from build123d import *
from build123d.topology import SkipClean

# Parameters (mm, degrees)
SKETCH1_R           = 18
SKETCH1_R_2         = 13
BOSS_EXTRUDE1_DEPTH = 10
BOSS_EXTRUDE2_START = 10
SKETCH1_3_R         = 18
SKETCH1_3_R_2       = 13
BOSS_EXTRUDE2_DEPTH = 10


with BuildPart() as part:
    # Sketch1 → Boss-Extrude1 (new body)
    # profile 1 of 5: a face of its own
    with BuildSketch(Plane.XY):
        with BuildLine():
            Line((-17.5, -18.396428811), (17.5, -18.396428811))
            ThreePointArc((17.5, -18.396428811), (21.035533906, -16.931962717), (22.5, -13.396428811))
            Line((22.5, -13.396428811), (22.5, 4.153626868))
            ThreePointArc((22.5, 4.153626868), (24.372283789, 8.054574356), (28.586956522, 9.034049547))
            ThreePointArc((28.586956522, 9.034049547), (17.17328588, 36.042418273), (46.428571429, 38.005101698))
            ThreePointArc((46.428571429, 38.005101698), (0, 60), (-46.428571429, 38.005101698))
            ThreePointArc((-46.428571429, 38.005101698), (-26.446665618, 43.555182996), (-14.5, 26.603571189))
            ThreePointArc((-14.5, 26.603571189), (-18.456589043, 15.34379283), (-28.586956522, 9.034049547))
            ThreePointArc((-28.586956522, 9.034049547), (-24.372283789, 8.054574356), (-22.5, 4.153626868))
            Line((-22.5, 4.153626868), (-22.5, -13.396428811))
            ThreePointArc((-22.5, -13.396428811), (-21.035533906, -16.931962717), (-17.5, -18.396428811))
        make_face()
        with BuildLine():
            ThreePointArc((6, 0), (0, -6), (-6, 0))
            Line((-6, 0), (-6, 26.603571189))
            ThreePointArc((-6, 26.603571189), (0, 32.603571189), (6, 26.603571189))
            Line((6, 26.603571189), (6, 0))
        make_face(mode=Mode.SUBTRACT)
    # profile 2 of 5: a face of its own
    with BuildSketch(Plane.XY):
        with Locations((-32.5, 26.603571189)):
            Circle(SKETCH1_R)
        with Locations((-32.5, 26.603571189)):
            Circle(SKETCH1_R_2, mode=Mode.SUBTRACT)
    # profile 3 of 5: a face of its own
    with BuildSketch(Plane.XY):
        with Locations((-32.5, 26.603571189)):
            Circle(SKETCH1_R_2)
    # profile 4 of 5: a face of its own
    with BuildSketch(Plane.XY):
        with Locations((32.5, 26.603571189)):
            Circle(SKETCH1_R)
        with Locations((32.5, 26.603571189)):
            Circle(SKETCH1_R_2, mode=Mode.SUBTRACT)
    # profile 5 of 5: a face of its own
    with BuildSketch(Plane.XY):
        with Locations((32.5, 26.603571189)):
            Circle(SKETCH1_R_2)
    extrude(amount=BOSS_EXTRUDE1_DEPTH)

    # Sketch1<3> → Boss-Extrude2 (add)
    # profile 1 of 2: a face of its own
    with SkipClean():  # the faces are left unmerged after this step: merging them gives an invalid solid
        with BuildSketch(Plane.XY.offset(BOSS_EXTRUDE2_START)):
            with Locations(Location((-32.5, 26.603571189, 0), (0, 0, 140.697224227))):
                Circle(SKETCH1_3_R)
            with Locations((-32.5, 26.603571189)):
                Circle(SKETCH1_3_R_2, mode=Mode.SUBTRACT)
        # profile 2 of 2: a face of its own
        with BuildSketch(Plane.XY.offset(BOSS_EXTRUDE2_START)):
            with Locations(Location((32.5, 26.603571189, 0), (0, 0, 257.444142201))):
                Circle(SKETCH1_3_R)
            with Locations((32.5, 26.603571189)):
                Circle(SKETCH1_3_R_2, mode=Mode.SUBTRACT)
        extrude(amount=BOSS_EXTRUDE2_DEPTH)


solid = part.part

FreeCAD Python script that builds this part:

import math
import FreeCAD as App
import Part
import Sketcher

V = App.Vector

doc = App.newDocument("Part")
body = doc.addObject("PartDesign::Body", "Body")

sketch1 = body.newObject("Sketcher::SketchObject", "Sketch")
sketch1.AttachmentSupport = (doc.getObject("XY_Plane"), [""])
sketch1.MapMode = "FlatFace"
sketch1.addGeometry([
    Part.LineSegment(V(-18, -18, 0), V(18, -18, 0)),
    Part.ArcOfCircle(Part.Circle(V(18, -13, 0), V(0, 0, 1), 5), math.radians(-90), math.radians(0)),
    Part.LineSegment(V(22, -13, 0), V(22, 4, 0)),
    Part.ArcOfCircle(Part.Circle(V(28, 4, 0), V(0, 0, 1), 5), math.radians(77), math.radians(180)),
    Part.ArcOfCircle(Part.Circle(V(32, 27, 0), V(0, 0, 1), 18), math.radians(-103), math.radians(39)),
    Part.ArcOfCircle(Part.Circle(V(0, 0, 0), V(0, 0, 1), 60), math.radians(39), math.radians(141)),
    Part.ArcOfCircle(Part.Circle(V(-32, 27, 0), V(0, 0, 1), 18), math.radians(141), math.radians(283)),
    Part.ArcOfCircle(Part.Circle(V(-28, 4, 0), V(0, 0, 1), 5), math.radians(0), math.radians(103)),
    Part.LineSegment(V(-22, 4, 0), V(-22, -13, 0)),
    Part.ArcOfCircle(Part.Circle(V(-18, -13, 0), V(0, 0, 1), 5), math.radians(180), math.radians(270)),
    Part.LineSegment(V(6, 27, 0), V(6, 0, 0)),
    Part.ArcOfCircle(Part.Circle(V(0, 0, 0), V(0, 0, 1), 6), math.radians(180), math.radians(360)),
    Part.LineSegment(V(-6, 0, 0), V(-6, 27, 0)),
    Part.ArcOfCircle(Part.Circle(V(0, 27, 0), V(0, 0, 1), 6), math.radians(0), math.radians(180)),
], False)
sketch1.addConstraint([
    Sketcher.Constraint("Tangent", 0, 2, 1, 1),
    Sketcher.Constraint("Tangent", 1, 2, 2, 1),
    Sketcher.Constraint("Tangent", 2, 2, 3, 2),
    Sketcher.Constraint("Tangent", 3, 1, 4, 1),
    Sketcher.Constraint("Tangent", 4, 2, 5, 1),
    Sketcher.Constraint("Tangent", 5, 2, 6, 1),
    Sketcher.Constraint("Tangent", 6, 2, 7, 2),
    Sketcher.Constraint("Tangent", 7, 1, 8, 1),
    Sketcher.Constraint("Tangent", 8, 2, 9, 1),
    Sketcher.Constraint("Tangent", 9, 2, 0, 1),
    Sketcher.Constraint("Tangent", 10, 2, 11, 2),
    Sketcher.Constraint("Tangent", 11, 1, 12, 1),
    Sketcher.Constraint("Tangent", 12, 2, 13, 2),
    Sketcher.Constraint("Tangent", 13, 1, 10, 1),
    Sketcher.Constraint("Horizontal", 0),
    Sketcher.Constraint("Vertical", 2),
    Sketcher.Constraint("Vertical", 8),
    Sketcher.Constraint("Vertical", 10),
    Sketcher.Constraint("Vertical", 12),
    Sketcher.Constraint("Coincident", 5, 3, -1, 1),
    Sketcher.Constraint("Coincident", 11, 3, -1, 1),
    Sketcher.Constraint("Equal", 1, 3),
    Sketcher.Constraint("Equal", 4, 6),
    Sketcher.Constraint("Equal", 3, 7),
    Sketcher.Constraint("Equal", 7, 9),
    Sketcher.Constraint("Symmetric", 3, 3, 7, 3, -2),
    Sketcher.Constraint("Horizontal", 6, 3, 13, 3),
    Sketcher.Constraint("Radius", 1, 5.0),
    Sketcher.Constraint("Radius", 4, 18.0),
    Sketcher.Constraint("Radius", 5, 60.0),
    Sketcher.Constraint("Radius", 11, 6.0),
    Sketcher.Constraint("DistanceX", 0, 1, 0, 2, 35.0),
    Sketcher.Constraint("DistanceX", 3, 3, 4, 3, 5.0),
    Sketcher.Constraint("DistanceY", 1, 3, 4, 3, 40.0),
])
pad1 = body.newObject("PartDesign::Pad", "Pad")
pad1.Profile = sketch1
pad1.Length = 10

sketch2 = body.newObject("Sketcher::SketchObject", "Sketch001")
sketch2.AttachmentSupport = (doc.getObject("XY_Plane"), [""])
sketch2.MapMode = "FlatFace"
sketch2.AttachmentOffset = App.Placement(V(0, 0, 10), App.Rotation())
sketch2.addGeometry([
    Part.Circle(V(-32, 27, 0), V(0, 0, 1), 18),
    Part.Circle(V(-32, 27, 0), V(0, 0, 1), 13),
    Part.Circle(V(32, 27, 0), V(0, 0, 1), 18),
    Part.Circle(V(32, 27, 0), V(0, 0, 1), 13),
], False)
sketch2.addConstraint([
    Sketcher.Constraint("Coincident", 1, 3, 0, 3),
    Sketcher.Constraint("Coincident", 3, 3, 2, 3),
    Sketcher.Constraint("Equal", 0, 2),
    Sketcher.Constraint("Equal", 1, 3),
    Sketcher.Constraint("Symmetric", 0, 3, 2, 3, -2),
    Sketcher.Constraint("Diameter", 0, 36.0),
    Sketcher.Constraint("Diameter", 1, 26.0),
    Sketcher.Constraint("DistanceX", 0, 3, 2, 3, 65.0),
    Sketcher.Constraint("DistanceY", -1, 1, 0, 3, 26.603571),
])
pad2 = body.newObject("PartDesign::Pad", "Pad001")
pad2.Profile = sketch2
pad2.Length = 10

doc.recompute()
